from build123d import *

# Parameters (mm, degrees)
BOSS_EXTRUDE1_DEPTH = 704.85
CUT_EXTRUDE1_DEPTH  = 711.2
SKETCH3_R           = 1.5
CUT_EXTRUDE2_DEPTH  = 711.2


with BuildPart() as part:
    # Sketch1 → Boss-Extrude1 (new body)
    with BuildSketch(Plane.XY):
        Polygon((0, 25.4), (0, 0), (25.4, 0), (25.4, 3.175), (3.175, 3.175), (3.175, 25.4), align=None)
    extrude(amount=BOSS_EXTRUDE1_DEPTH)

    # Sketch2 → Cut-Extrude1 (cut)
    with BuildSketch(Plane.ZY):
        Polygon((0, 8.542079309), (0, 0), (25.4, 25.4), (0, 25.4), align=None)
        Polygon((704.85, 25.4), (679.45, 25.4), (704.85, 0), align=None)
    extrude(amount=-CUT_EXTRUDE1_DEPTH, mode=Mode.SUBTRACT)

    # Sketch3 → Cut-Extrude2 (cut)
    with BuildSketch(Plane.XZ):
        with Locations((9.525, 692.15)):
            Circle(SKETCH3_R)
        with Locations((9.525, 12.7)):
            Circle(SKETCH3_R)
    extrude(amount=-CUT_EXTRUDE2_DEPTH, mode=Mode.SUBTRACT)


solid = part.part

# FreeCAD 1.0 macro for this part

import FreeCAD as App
import Part
import Sketcher
from FreeCAD import Vector
Q = App.Units.Quantity


def add_polygon(sketch, points):
    """Adds a closed chain of lines whose ends are joined by coincident constraints."""
    first, n = sketch.GeometryCount, len(points)
    for a, b in zip(points, points[1:] + points[:1]):
        sketch.addGeometry(Part.LineSegment(App.Vector(*a, 0), App.Vector(*b, 0)), False)
    for i in range(n):
        sketch.addConstraint(Sketcher.Constraint("Coincident", first + i, 2, first + (i + 1) % n, 1))

doc = App.newDocument("Part")
params = doc.addObject("Spreadsheet::Sheet", "Params")
for row, (alias, value) in enumerate([
    ("sketch1_width", "1 in"),
    ("sketch1_width2", "0.875 in"),
    ("pad1_length", "27.75 in"),
    ("sketch2_width", "1 in"),
    ("pocket1_length", "28 in"),
    ("pocket2_length", "28 in"),
], start=1):
    params.set(f"A{row}", alias)
    params.set(f"B{row}", "=" + value)
    params.setAlias(f"B{row}", alias)

body = doc.addObject("PartDesign::Body", "Body")

# Sketch on XY plane
sketch1 = body.newObject("Sketcher::SketchObject", "Sketch")
sketch1.AttachmentSupport = (doc.getObject("XY_Plane"), [""])
sketch1.MapMode = "FlatFace"
add_polygon(sketch1, [(0, 25.4), (0, 0), (25.4, 0), (25.4, 3.2), (3.2, 3.2), (3.2, 25.4)])  # lines 0-5
sketch1.addConstraint([
    Sketcher.Constraint("Vertical", 0),
    Sketcher.Constraint("Horizontal", 1),
    Sketcher.Constraint("Vertical", 2),
    Sketcher.Constraint("Horizontal", 3),
    Sketcher.Constraint("Vertical", 4),
    Sketcher.Constraint("Horizontal", 5),
    Sketcher.Constraint("Coincident", 0, 2, -1, 1),
    Sketcher.Constraint("Equal", 1, 0),
    Sketcher.Constraint("Equal", 5, 2),
    Sketcher.Constraint("DistanceX", 1, 1, 1, 2, Q("1 in")),
    Sketcher.Constraint("DistanceX", 3, 2, 3, 1, Q("0.875 in")),
])
sketch1.setExpression("Constraints[15]", "Params.sketch1_width")
sketch1.setExpression("Constraints[16]", "Params.sketch1_width2")
pad1 = body.newObject("PartDesign::Pad", "Pad")
pad1.Profile = sketch1
pad1.setExpression("Length", "Params.pad1_length")

# Sketch on YZ plane
sketch2 = body.newObject("Sketcher::SketchObject", "Sketch001")
sketch2.AttachmentSupport = (doc.getObject("YZ_Plane"), [""])
sketch2.MapMode = "FlatFace"
add_polygon(sketch2, [(0, 0), (25, 25), (25, 0)])  # lines 0-2
add_polygon(sketch2, [(25, 705), (25, 679), (0, 705)])  # lines 3-5
sketch2.addConstraint([
    Sketcher.Constraint("Vertical", 1),
    Sketcher.Constraint("Horizontal", 2),
    Sketcher.Constraint("Vertical", 3),
    Sketcher.Constraint("Horizontal", 5),
    Sketcher.Constraint("Coincident", 2, 2, -1, 1),
    Sketcher.Constraint("PointOnObject", 4, 2, -2),
    Sketcher.Constraint("Perpendicular", 0, 4),
    Sketcher.Constraint("Vertical", 1, 2, 3, 2),
    Sketcher.Constraint("Equal", 5, 1),
    Sketcher.Constraint("DistanceX", 2, 2, 2, 1, Q("1 in")),
    Sketcher.Constraint("DistanceY", -1, 1, 3, 2, Q("26.75 in")),
])
sketch2.setExpression("Constraints[15]", "Params.sketch2_width")
pocket1 = body.newObject("PartDesign::Pocket", "Pocket")
pocket1.Profile = sketch2
pocket1.setExpression("Length", "Params.pocket1_length")
pocket1.Reversed = True

# Sketch on XZ plane
sketch3 = body.newObject("Sketcher::SketchObject", "Sketch002")
sketch3.AttachmentSupport = (doc.getObject("XZ_Plane"), [""])
sketch3.MapMode = "FlatFace"
sketch3.addGeometry([
    Part.Circle(Vector(9.5, 692.1, 0), Vector(0, 0, 1), 1.5),
    Part.Circle(Vector(9.5, 12.7, 0), Vector(0, 0, 1), 1.5),
], False)
sketch3.addConstraint([
    Sketcher.Constraint("Equal", 0, 1),
    Sketcher.Constraint("Vertical", 0, 3, 1, 3),
    Sketcher.Constraint("DistanceY", -1, 1, 1, 3, Q("0.5 in")),
    Sketcher.Constraint("Diameter", 0, 3.0),
    Sketcher.Constraint("DistanceY", -1, 1, 0, 3, Q("27.25 in")),
    Sketcher.Constraint("DistanceX", -1, 1, 0, 3, Q("0.375 in")),
])
pocket2 = body.newObject("PartDesign::Pocket", "Pocket001")
pocket2.Profile = sketch3
pocket2.setExpression("Length", "Params.pocket2_length")

doc.recompute()
